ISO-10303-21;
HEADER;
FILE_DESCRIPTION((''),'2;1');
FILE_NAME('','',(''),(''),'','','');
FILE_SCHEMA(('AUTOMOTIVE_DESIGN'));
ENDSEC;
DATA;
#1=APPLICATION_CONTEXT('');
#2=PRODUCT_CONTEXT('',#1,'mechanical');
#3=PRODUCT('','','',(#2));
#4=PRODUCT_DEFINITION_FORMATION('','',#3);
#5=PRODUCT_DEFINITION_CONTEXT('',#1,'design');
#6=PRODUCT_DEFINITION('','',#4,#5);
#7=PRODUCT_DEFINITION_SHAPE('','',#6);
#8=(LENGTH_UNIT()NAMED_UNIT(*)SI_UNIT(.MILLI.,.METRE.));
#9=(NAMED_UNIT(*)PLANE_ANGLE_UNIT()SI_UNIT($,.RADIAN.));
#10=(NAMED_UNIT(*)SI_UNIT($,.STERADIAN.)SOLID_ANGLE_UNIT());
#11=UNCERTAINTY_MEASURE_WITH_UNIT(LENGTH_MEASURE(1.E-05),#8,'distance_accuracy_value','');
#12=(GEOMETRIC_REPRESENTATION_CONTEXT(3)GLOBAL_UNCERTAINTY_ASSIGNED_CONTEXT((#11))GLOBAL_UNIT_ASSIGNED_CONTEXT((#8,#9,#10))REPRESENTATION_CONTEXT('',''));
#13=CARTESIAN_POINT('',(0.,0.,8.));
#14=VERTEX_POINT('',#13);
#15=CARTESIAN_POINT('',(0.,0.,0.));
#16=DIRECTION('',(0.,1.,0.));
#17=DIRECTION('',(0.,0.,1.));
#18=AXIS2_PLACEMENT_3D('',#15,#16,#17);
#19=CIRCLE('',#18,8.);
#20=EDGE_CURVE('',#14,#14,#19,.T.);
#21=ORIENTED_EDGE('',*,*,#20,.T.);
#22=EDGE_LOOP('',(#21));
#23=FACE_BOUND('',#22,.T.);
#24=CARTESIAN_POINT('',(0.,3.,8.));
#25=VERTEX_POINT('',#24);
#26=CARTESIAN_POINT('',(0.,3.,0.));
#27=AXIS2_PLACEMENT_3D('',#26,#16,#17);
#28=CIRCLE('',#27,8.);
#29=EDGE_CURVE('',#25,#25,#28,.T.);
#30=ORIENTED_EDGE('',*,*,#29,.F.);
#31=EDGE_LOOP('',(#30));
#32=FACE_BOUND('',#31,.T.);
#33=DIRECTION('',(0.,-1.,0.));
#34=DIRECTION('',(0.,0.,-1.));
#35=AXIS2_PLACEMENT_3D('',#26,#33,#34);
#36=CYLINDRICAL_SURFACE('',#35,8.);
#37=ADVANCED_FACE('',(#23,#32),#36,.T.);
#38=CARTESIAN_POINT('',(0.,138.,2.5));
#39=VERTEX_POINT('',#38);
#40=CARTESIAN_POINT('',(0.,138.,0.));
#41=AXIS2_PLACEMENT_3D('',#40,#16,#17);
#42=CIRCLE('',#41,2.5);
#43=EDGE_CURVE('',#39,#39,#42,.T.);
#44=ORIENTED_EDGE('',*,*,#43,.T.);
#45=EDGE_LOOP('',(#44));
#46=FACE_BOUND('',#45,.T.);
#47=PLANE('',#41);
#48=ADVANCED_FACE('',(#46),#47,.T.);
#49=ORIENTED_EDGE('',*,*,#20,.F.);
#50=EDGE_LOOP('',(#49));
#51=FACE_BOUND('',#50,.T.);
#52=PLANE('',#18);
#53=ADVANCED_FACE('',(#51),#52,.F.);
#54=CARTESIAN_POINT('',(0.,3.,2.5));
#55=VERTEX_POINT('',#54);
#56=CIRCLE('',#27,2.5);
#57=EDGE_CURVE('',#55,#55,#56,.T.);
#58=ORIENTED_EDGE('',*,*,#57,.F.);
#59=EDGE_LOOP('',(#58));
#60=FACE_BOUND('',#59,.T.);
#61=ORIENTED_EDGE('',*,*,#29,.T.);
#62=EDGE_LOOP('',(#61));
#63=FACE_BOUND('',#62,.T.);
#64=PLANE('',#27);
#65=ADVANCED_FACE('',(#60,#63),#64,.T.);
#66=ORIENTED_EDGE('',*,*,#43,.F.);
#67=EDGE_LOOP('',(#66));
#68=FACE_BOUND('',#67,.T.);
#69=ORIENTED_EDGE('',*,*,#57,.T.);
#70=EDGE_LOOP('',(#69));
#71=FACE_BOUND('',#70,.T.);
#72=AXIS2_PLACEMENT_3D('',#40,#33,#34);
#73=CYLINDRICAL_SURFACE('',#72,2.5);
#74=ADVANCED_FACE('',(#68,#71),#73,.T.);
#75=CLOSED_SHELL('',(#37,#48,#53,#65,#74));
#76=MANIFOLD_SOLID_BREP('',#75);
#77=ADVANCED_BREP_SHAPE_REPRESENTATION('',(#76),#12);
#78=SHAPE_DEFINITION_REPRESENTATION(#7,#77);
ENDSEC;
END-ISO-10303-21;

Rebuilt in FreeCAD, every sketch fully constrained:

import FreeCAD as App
import Part
import Sketcher
from FreeCAD import Vector

doc = App.newDocument("Part")
body = doc.addObject("PartDesign::Body", "Body")

sketch1 = body.newObject("Sketcher::SketchObject", "Sketch")
sketch1.AttachmentSupport = (doc.getObject("XZ_Plane"), [""])
sketch1.MapMode = "FlatFace"
sketch1.addGeometry(Part.Circle(Vector(0, 0, 0), Vector(0, 0, 1), 8), False)
sketch1.addConstraint(Sketcher.Constraint("Coincident", 0, 3, -1, 1))
sketch1.addConstraint(Sketcher.Constraint("Diameter", 0, 16.0))
pad1 = body.newObject("PartDesign::Pad", "Pad")
pad1.Profile = sketch1
pad1.Length = 3
pad1.Reversed = True

sketch2 = body.newObject("Sketcher::SketchObject", "Sketch001")
sketch2.AttachmentSupport = (doc.getObject("XZ_Plane"), [""])
sketch2.MapMode = "FlatFace"
sketch2.AttachmentOffset = App.Placement(Vector(0, 0, -3), App.Rotation())
sketch2.addGeometry(Part.Circle(Vector(0, 0, 0), Vector(0, 0, 1), 2.5), False)
sketch2.addConstraint(Sketcher.Constraint("Coincident", 0, 3, -1, 1))
sketch2.addConstraint(Sketcher.Constraint("Diameter", 0, 5.0))
pad2 = body.newObject("PartDesign::Pad", "Pad001")
pad2.Profile = sketch2
pad2.Length = 135
pad2.Reversed = True

doc.recompute()
